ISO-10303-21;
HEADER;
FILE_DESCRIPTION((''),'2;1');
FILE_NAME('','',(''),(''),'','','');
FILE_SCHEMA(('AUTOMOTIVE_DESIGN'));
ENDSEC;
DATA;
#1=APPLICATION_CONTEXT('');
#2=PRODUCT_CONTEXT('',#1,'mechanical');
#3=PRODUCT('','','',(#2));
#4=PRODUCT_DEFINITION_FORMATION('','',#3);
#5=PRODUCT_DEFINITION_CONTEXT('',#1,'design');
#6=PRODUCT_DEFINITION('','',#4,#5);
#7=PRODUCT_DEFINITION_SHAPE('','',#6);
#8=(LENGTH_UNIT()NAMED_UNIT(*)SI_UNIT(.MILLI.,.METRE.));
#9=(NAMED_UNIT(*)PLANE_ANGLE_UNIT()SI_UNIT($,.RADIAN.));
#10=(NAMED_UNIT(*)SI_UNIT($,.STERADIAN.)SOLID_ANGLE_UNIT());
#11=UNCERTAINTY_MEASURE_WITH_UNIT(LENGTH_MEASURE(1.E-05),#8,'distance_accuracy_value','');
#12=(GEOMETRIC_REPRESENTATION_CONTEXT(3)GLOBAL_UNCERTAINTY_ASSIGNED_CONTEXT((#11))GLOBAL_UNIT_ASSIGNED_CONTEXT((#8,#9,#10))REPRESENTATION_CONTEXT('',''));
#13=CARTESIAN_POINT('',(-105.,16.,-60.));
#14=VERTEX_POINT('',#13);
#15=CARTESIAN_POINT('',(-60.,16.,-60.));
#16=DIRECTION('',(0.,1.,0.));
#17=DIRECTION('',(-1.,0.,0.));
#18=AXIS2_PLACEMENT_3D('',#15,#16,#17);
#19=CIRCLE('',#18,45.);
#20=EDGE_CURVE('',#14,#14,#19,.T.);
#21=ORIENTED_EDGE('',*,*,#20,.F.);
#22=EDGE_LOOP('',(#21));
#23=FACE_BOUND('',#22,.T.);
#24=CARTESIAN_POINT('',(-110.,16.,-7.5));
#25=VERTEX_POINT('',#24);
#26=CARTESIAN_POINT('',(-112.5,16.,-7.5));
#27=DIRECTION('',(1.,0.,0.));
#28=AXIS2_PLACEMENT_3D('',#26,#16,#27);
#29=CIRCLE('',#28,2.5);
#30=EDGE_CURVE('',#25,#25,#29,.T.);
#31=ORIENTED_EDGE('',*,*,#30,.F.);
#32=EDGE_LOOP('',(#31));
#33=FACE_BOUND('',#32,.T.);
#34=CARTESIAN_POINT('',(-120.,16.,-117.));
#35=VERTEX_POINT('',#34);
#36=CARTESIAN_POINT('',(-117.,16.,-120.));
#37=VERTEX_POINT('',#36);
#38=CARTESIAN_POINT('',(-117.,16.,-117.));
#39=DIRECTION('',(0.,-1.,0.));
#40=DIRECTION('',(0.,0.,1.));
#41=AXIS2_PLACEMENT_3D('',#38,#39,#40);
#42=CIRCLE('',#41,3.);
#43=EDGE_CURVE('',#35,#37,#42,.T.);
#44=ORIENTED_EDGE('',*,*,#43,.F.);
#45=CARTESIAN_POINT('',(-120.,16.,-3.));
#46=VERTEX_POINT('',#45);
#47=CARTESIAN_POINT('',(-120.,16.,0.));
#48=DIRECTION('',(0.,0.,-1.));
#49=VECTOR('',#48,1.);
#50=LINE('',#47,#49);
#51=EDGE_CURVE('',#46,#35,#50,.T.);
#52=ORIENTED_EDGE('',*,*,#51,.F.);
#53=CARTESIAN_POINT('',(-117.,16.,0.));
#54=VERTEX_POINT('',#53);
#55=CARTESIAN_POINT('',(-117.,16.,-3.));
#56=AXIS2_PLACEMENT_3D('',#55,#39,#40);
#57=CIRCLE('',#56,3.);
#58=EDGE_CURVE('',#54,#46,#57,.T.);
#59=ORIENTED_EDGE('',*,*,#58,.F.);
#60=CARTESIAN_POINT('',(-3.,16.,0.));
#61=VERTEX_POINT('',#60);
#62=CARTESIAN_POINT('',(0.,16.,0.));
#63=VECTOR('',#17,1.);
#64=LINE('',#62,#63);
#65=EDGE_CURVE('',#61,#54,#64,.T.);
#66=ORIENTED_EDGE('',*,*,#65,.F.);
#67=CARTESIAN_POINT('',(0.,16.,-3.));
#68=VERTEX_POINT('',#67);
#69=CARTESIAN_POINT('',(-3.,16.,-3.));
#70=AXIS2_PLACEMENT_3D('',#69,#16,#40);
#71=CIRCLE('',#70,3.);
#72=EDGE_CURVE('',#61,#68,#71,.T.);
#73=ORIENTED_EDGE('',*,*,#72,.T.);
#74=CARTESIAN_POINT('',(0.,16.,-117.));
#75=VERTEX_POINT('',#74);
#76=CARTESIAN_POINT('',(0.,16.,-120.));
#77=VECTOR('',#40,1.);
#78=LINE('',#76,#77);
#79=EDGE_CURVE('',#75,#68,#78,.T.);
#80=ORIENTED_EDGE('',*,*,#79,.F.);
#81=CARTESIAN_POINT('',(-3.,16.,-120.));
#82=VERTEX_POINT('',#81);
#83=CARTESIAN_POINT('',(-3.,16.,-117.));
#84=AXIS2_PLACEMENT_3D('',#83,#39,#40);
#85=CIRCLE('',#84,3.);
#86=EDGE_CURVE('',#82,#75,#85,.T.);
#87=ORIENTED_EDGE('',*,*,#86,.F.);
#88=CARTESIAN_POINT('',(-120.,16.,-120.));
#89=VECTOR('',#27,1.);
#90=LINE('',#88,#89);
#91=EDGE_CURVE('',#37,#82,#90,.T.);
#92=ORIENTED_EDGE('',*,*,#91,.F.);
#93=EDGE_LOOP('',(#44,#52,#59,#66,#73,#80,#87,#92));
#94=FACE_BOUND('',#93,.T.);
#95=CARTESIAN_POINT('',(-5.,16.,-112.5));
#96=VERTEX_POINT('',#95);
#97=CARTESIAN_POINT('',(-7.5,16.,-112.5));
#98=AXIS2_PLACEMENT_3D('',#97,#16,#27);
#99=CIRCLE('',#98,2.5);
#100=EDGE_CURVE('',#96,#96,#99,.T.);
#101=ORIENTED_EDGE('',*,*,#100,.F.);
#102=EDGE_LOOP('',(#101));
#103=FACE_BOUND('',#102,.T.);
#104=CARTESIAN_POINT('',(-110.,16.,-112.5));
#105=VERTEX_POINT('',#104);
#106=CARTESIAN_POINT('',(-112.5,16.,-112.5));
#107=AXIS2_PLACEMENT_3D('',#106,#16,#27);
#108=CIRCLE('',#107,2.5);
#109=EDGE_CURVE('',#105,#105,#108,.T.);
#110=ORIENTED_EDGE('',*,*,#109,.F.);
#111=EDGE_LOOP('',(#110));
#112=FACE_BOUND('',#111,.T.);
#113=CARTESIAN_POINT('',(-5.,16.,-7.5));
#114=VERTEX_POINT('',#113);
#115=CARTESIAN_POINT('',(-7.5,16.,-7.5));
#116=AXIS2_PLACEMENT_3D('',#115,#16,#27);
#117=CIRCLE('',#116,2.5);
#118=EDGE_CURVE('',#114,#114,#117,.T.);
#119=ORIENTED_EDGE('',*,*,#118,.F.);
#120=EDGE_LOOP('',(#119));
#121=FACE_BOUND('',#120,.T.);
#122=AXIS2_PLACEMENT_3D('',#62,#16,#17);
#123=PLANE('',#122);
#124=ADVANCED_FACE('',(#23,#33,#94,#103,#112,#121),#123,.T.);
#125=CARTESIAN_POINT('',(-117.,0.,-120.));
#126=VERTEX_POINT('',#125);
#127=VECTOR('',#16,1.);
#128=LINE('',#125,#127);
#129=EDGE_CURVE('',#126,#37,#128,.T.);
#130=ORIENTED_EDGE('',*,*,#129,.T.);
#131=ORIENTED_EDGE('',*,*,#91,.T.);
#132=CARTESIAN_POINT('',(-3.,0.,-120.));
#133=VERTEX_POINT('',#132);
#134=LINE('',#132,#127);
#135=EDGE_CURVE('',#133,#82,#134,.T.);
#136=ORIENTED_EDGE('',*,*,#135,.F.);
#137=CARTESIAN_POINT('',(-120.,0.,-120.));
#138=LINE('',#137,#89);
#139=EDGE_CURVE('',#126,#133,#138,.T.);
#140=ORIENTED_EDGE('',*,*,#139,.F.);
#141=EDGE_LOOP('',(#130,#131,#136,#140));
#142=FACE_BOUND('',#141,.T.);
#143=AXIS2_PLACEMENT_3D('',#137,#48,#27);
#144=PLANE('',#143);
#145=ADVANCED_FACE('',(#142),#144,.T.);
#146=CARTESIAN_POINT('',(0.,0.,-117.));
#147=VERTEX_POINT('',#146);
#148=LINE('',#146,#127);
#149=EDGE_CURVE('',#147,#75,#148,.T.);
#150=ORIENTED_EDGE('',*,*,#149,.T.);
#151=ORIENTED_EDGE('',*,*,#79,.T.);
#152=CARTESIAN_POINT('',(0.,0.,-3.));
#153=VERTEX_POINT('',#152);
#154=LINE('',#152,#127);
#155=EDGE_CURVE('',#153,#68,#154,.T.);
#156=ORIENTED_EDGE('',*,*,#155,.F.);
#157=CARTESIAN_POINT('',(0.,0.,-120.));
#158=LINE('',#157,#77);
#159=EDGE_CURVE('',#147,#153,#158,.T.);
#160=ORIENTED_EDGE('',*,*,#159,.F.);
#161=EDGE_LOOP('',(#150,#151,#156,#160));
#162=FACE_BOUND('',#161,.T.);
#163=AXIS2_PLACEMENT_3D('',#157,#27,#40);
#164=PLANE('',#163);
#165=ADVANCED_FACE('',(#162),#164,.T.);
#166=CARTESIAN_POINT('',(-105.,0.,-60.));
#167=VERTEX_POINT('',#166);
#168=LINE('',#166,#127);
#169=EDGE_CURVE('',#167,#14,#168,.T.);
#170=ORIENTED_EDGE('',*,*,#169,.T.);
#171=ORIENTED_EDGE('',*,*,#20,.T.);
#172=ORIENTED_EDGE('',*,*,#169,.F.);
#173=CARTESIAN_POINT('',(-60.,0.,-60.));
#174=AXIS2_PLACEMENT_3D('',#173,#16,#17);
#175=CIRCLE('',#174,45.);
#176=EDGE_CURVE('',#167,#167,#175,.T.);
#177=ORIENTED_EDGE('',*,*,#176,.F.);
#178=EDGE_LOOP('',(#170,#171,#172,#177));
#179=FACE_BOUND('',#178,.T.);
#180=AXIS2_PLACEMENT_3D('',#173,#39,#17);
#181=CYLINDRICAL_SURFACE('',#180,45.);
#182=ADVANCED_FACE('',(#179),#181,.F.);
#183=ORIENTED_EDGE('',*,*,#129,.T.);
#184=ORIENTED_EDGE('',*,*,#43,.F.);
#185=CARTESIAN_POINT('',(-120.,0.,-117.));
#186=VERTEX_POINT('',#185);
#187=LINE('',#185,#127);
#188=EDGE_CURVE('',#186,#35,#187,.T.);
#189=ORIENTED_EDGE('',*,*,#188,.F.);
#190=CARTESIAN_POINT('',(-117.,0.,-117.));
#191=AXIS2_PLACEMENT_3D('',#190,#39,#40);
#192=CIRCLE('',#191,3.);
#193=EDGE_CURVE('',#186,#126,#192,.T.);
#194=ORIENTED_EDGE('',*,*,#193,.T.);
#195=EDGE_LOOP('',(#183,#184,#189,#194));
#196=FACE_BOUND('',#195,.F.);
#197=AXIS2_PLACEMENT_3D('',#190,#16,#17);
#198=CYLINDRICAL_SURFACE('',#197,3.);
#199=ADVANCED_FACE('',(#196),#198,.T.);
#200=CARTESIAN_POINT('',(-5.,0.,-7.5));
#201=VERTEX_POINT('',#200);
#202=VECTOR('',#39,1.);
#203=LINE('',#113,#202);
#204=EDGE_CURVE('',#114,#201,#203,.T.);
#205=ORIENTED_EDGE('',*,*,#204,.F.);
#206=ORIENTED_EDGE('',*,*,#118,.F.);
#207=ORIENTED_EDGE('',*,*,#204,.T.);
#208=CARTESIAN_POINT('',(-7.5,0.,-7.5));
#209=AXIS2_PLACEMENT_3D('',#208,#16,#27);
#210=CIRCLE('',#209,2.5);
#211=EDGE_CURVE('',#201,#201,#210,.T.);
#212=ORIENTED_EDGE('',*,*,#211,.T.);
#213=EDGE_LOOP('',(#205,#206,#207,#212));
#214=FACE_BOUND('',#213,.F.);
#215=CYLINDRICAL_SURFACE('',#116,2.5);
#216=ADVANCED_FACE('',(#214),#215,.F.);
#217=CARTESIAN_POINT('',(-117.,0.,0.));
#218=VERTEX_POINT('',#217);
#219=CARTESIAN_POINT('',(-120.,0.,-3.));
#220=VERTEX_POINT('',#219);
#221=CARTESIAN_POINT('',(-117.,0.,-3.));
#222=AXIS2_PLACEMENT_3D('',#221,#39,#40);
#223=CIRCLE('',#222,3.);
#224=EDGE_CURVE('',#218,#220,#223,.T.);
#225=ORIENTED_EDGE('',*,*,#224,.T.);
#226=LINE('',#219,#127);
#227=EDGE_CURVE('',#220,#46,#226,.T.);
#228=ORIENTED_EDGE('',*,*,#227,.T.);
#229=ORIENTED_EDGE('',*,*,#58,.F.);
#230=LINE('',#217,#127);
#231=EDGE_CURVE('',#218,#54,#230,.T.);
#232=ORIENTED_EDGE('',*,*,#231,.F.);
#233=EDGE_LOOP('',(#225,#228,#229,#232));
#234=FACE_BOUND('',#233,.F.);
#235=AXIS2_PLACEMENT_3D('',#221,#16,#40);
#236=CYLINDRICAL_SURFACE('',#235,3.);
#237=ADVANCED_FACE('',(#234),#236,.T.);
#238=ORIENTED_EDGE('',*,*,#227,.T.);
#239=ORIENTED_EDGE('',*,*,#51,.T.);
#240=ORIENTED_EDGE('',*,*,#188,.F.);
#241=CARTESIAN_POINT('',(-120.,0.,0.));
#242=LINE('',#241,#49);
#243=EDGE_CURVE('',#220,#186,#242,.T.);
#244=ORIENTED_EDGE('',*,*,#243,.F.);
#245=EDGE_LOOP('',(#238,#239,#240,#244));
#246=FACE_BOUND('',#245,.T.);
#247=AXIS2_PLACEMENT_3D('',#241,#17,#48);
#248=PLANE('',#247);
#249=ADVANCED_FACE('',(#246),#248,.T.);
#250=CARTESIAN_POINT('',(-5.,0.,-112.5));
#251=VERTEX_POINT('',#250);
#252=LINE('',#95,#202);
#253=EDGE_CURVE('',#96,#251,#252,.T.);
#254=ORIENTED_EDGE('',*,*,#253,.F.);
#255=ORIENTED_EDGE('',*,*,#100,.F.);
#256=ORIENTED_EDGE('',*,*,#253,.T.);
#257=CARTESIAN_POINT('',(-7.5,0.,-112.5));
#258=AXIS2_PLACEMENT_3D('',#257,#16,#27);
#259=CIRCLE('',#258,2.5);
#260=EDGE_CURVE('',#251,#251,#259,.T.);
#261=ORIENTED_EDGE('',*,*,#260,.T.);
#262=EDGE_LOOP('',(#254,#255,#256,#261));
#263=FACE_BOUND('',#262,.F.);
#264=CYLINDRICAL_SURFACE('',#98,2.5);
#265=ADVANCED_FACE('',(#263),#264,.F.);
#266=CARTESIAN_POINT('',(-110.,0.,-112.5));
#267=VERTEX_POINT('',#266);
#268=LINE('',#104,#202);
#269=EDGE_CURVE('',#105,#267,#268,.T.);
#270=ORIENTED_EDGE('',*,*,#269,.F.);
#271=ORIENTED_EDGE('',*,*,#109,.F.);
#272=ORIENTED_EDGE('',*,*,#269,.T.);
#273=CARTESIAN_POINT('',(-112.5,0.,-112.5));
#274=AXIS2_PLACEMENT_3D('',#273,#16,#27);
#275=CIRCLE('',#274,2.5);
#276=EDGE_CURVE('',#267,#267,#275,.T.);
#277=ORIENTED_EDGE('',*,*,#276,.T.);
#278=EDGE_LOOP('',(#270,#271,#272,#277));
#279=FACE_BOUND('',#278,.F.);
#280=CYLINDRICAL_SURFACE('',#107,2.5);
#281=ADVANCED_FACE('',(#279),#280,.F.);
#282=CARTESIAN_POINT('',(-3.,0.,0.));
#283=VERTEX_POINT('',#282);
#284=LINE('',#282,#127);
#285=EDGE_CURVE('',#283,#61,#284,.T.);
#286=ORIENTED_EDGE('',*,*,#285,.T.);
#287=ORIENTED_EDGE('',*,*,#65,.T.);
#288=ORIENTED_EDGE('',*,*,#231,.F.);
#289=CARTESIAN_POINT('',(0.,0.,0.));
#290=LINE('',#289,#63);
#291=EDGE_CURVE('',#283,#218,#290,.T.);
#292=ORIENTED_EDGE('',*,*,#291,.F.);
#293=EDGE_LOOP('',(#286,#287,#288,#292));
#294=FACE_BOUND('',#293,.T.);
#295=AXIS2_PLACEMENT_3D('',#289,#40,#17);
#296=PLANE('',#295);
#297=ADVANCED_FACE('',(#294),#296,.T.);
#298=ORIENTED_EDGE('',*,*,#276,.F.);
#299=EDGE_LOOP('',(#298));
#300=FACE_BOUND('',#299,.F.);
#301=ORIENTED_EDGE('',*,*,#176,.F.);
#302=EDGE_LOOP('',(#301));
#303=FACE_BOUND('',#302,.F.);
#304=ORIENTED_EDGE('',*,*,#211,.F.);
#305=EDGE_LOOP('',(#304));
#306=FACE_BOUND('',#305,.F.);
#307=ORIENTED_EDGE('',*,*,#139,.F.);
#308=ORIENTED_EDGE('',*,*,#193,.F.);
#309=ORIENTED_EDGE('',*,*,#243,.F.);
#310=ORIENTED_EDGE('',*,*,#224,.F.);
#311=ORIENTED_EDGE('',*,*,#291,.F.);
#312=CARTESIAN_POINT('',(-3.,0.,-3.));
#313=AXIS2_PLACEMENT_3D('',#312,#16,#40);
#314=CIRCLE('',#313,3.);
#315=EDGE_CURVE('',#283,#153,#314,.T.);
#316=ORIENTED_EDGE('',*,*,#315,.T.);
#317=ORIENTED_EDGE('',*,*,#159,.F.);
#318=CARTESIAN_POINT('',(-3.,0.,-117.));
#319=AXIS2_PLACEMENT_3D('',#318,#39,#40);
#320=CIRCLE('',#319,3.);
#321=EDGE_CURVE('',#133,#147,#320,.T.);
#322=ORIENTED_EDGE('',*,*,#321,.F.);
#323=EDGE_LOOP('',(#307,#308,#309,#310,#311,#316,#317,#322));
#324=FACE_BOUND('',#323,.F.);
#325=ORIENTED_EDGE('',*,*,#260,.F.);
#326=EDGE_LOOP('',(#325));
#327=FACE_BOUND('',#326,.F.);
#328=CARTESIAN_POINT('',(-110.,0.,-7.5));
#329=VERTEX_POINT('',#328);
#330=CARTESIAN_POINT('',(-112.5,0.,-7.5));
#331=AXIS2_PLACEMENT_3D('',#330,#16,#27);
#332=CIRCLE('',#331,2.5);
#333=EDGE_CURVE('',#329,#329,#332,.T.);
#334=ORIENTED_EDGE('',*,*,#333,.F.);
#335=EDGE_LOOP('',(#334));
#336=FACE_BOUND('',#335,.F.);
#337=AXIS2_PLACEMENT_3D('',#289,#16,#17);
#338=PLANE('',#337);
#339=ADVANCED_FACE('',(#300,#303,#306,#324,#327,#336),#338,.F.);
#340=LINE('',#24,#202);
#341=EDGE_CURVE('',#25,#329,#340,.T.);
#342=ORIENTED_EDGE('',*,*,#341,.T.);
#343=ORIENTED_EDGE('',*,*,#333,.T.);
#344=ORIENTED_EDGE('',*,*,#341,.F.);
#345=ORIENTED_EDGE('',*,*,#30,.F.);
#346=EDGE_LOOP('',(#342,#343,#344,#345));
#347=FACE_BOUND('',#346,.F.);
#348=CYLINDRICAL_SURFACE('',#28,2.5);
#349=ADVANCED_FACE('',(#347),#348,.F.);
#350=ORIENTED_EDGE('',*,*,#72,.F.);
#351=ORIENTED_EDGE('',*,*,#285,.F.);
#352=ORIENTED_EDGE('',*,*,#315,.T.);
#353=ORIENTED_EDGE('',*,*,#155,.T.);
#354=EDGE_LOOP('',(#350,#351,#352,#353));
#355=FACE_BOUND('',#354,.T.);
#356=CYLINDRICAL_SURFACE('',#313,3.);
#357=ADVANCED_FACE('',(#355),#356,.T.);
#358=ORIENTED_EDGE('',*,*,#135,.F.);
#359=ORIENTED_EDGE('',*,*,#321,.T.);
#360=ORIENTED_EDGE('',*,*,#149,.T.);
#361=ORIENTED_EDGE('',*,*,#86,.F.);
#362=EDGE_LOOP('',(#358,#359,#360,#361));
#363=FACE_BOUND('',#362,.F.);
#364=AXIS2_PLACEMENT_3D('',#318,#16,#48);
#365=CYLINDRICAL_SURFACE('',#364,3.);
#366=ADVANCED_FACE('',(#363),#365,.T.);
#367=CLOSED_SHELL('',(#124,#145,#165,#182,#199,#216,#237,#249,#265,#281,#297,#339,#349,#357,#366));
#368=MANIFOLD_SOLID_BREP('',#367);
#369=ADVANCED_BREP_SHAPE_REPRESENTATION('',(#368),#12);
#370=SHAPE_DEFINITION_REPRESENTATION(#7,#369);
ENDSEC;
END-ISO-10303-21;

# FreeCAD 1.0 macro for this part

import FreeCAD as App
import Part
import Sketcher

V = App.Vector


def edges_at(feature, points):
    """Names of the edges that pass closest to the given points."""
    edges = feature.Shape.Edges
    near = lambda p: min(range(len(edges)), key=lambda i: edges[i].distToShape(Part.Vertex(*p))[0])
    return sorted({f"Edge{near(p) + 1}" for p in points})


def add_polygon(sketch, points):
    """Adds a closed chain of lines whose ends are joined by coincident constraints."""
    first, n = sketch.GeometryCount, len(points)
    for a, b in zip(points, points[1:] + points[:1]):
        sketch.addGeometry(Part.LineSegment(App.Vector(*a, 0), App.Vector(*b, 0)), False)
    for i in range(n):
        sketch.addConstraint(Sketcher.Constraint("Coincident", first + i, 2, first + (i + 1) % n, 1))

doc = App.newDocument("Part")
body = doc.addObject("PartDesign::Body", "Body")

sketch1 = body.newObject("Sketcher::SketchObject", "Sketch")
sketch1.AttachmentSupport = (doc.getObject("XZ_Plane"), [""])
sketch1.MapMode = "FlatFace"
add_polygon(sketch1, [(-120, 0), (0, 0), (0, -120), (-120, -120)])
sketch1.addConstraint([
    Sketcher.Constraint("Horizontal", 0),
    Sketcher.Constraint("Vertical", 1),
    Sketcher.Constraint("Horizontal", 2),
    Sketcher.Constraint("Vertical", 3),
    Sketcher.Constraint("Coincident", 0, 2, -1, 1),
    Sketcher.Constraint("Equal", 2, 1),
    Sketcher.Constraint("DistanceX", 0, 1, 0, 2, 120.0),
])
pad1 = body.newObject("PartDesign::Pad", "Pad")
pad1.Profile = sketch1
pad1.Length = 16
pad1.Reversed = True
doc.recompute()

fillet = body.newObject("PartDesign::Fillet", "Fillet")
fillet.Base = (pad1, edges_at(pad1, [
    (-120, 8, 0),
    (0, 8, 0),
    (0, 8, -120),
    (-120, 8, -120),
]))
fillet.Radius = 3

sketch2 = body.newObject("Sketcher::SketchObject", "Sketch001")
sketch2.AttachmentSupport = (doc.getObject("XZ_Plane"), [""])
sketch2.MapMode = "FlatFace"
sketch2.addGeometry(Part.Circle(V(-60, -60, 0), V(0, 0, 1), 45), False)
sketch2.addConstraint([
    Sketcher.Constraint("Diameter", 0, 90.0),
    Sketcher.Constraint("DistanceX", 0, 3, -1, 1, 60.0),
    Sketcher.Constraint("DistanceY", 0, 3, -1, 1, 60.0),
])
pocket1 = body.newObject("PartDesign::Pocket", "Pocket")
pocket1.Profile = sketch2
pocket1.Length = 16

sketch3 = body.newObject("Sketcher::SketchObject", "Sketch002")
sketch3.AttachmentSupport = (doc.getObject("XZ_Plane"), [""])
sketch3.MapMode = "FlatFace"
sketch3.AttachmentOffset = App.Placement(V(0, 0, -16), App.Rotation())
sketch3.addGeometry([
    Part.Circle(V(-112.5, -7.5, 0), V(0, 0, 1), 2.5),
    Part.Circle(V(-7.5, -7.5, 0), V(0, 0, 1), 2.5),
    Part.Circle(V(-7.5, -112.5, 0), V(0, 0, 1), 2.5),
    Part.Circle(V(-112.5, -112.5, 0), V(0, 0, 1), 2.5),
], False)
sketch3.addConstraint([
    Sketcher.Constraint("Equal", 0, 1),
    Sketcher.Constraint("Equal", 1, 2),
    Sketcher.Constraint("Equal", 2, 3),
    Sketcher.Constraint("Horizontal", 0, 3, 1, 3),
    Sketcher.Constraint("Horizontal", 2, 3, 3, 3),
    Sketcher.Constraint("Vertical", 1, 3, 2, 3),
    Sketcher.Constraint("Vertical", 0, 3, 3, 3),
    Sketcher.Constraint("Diameter", 0, 5.0),
    Sketcher.Constraint("DistanceX", 0, 3, 1, 3, 105.0),
    Sketcher.Constraint("DistanceY", 2, 3, 1, 3, 105.0),
    Sketcher.Constraint("DistanceX", 0, 3, -1, 1, 112.5),
    Sketcher.Constraint("DistanceY", 0, 3, -1, 1, 7.5),
])
pocket2 = body.newObject("PartDesign::Pocket", "Pocket001")
pocket2.Profile = sketch3
pocket2.Length = 16
pocket2.Reversed = True

doc.recompute()
